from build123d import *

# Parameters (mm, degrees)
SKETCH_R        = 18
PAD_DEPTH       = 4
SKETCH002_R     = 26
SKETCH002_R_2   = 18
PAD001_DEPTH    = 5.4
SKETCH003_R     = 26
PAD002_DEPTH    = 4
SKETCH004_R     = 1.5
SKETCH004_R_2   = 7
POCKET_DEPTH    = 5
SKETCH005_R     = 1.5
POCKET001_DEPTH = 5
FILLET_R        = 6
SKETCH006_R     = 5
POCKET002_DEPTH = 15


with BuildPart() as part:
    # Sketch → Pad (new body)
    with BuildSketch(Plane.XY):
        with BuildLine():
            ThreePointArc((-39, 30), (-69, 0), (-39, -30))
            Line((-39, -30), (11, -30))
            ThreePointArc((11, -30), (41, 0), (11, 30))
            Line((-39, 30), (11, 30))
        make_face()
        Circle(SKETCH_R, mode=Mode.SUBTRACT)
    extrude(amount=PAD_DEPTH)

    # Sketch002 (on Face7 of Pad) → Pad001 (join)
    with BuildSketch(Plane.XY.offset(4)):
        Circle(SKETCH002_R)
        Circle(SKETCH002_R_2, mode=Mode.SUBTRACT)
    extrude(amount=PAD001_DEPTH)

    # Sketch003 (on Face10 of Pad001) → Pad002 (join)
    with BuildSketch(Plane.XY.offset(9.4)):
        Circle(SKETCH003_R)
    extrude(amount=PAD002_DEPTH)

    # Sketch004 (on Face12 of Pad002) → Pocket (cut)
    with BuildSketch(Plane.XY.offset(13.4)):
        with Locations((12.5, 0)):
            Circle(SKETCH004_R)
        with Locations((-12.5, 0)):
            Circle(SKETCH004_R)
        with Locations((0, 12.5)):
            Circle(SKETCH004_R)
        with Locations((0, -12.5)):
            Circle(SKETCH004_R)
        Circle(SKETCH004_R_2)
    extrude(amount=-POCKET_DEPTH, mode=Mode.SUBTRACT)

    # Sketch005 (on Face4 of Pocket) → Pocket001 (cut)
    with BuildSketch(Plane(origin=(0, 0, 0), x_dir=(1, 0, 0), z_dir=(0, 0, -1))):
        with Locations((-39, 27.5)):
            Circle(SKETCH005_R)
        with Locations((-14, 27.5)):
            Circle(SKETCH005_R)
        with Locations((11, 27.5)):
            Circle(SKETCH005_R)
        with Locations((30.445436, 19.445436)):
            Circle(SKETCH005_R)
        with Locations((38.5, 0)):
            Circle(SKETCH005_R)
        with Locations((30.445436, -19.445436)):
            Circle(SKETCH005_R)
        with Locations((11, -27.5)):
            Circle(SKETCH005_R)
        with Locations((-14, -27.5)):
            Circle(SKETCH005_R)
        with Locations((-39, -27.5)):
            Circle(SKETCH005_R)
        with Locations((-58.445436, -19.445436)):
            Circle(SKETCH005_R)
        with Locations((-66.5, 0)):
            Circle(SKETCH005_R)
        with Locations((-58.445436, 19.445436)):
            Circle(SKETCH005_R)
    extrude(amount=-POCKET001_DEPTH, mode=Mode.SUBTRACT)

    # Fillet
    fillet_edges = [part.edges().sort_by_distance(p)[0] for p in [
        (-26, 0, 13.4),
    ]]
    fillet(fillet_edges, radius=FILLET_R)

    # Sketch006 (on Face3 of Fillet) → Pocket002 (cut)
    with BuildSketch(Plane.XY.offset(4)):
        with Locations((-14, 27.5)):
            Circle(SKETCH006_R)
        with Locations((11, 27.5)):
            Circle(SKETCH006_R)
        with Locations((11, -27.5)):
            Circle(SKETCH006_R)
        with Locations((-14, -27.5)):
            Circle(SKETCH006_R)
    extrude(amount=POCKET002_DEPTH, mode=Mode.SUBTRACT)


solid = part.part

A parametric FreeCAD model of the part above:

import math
import FreeCAD as App
import Part
import Sketcher

V = App.Vector
Q = App.Units.Quantity


def edges_at(feature, points):
    """Names of the edges that pass closest to the given points."""
    edges = feature.Shape.Edges
    near = lambda p: min(range(len(edges)), key=lambda i: edges[i].distToShape(Part.Vertex(*p))[0])
    return sorted({f"Edge{near(p) + 1}" for p in points})

doc = App.newDocument("Part")
body = doc.addObject("PartDesign::Body", "Body")

# Sketch on XY plane
sketch1 = body.newObject("Sketcher::SketchObject", "Sketch")
sketch1.AttachmentSupport = (doc.getObject("XY_Plane"), [""])
sketch1.MapMode = "FlatFace"
sketch1.addGeometry(Part.ArcOfCircle(Part.Circle(V(-39, 0, 0), V(0, 0, 1), 30), math.radians(90), math.radians(270)), False)
sketch1.addGeometry(Part.LineSegment(V(-39, -30, 0), V(11, -30, 0)), False)
sketch1.addGeometry(Part.ArcOfCircle(Part.Circle(V(11, 0, 0), V(0, 0, 1), 30), math.radians(-90), math.radians(90)), False)
sketch1.addGeometry(Part.LineSegment(V(11, 30, 0), V(-39, 30, 0)), False)
sketch1.addGeometry(Part.Circle(V(0, 0, 0), V(0, 0, 1), 18), False)
sketch1.addConstraint(Sketcher.Constraint("Tangent", 0, 2, 1, 1))
sketch1.addConstraint(Sketcher.Constraint("Tangent", 1, 2, 2, 1))
sketch1.addConstraint(Sketcher.Constraint("Tangent", 2, 2, 3, 1))
sketch1.addConstraint(Sketcher.Constraint("Tangent", 3, 2, 0, 1))
sketch1.addConstraint(Sketcher.Constraint("Horizontal", 1))
sketch1.addConstraint(Sketcher.Constraint("Horizontal", 3))
sketch1.addConstraint(Sketcher.Constraint("Coincident", 4, 3, -1, 1))
sketch1.addConstraint(Sketcher.Constraint("PointOnObject", 0, 3, -1))
sketch1.addConstraint(Sketcher.Constraint("Diameter", 4, Q("36 mm")))
sketch1.addConstraint(Sketcher.Constraint("Radius", 0, Q("30 mm")))
sketch1.addConstraint(Sketcher.Constraint("DistanceX", 1, 1, 1, 2, Q("50 mm")))
sketch1.addConstraint(Sketcher.Constraint("DistanceX", 0, 3, -1, 1, Q("39 mm")))
pad1 = body.newObject("PartDesign::Pad", "Pad")
pad1.Profile = sketch1
pad1.Length = 4

# Sketch on XY plane
sketch2 = body.newObject("Sketcher::SketchObject", "Sketch001")
sketch2.AttachmentSupport = (doc.getObject("XY_Plane"), [""])
sketch2.MapMode = "FlatFace"
sketch2.AttachmentOffset = App.Placement(V(0, 0, 4), App.Rotation())
sketch2.addGeometry(Part.Circle(V(0, 0, 0), V(0, 0, 1), 26), False)
sketch2.addGeometry(Part.Circle(V(0, 0, 0), V(0, 0, 1), 18), False)
sketch2.addConstraint(Sketcher.Constraint("Coincident", 0, 3, -1, 1))
sketch2.addConstraint(Sketcher.Constraint("Coincident", 1, 3, -1, 1))
sketch2.addConstraint(Sketcher.Constraint("Diameter", 0, Q("52 mm")))
sketch2.addConstraint(Sketcher.Constraint("Diameter", 1, Q("36 mm")))
pad2 = body.newObject("PartDesign::Pad", "Pad001")
pad2.Profile = sketch2
pad2.Length = 5.4

# Sketch on XY plane
sketch3 = body.newObject("Sketcher::SketchObject", "Sketch002")
sketch3.AttachmentSupport = (doc.getObject("XY_Plane"), [""])
sketch3.MapMode = "FlatFace"
sketch3.AttachmentOffset = App.Placement(V(0, 0, 9.4), App.Rotation())
sketch3.addGeometry(Part.Circle(V(0, 0, 0), V(0, 0, 1), 26), False)
sketch3.addConstraint(Sketcher.Constraint("Coincident", 0, 3, -1, 1))
sketch3.addConstraint(Sketcher.Constraint("Diameter", 0, Q("52 mm")))
pad3 = body.newObject("PartDesign::Pad", "Pad002")
pad3.Profile = sketch3
pad3.Length = 4

# Sketch on XY plane
sketch4 = body.newObject("Sketcher::SketchObject", "Sketch003")
sketch4.AttachmentSupport = (doc.getObject("XY_Plane"), [""])
sketch4.MapMode = "FlatFace"
sketch4.AttachmentOffset = App.Placement(V(0, 0, 13.4), App.Rotation())
sketch4.addGeometry(Part.Circle(V(12.5, 0, 0), V(0, 0, 1), 1.5), False)
sketch4.addGeometry(Part.Circle(V(-12.5, 0, 0), V(0, 0, 1), 1.5), False)
sketch4.addGeometry(Part.Circle(V(0, 12.5, 0), V(0, 0, 1), 1.5), False)
sketch4.addGeometry(Part.Circle(V(0, -12.5, 0), V(0, 0, 1), 1.5), False)
sketch4.addGeometry(Part.Circle(V(0, 0, 0), V(0, 0, 1), 7), False)
sketch4.addConstraint(Sketcher.Constraint("Coincident", 4, 3, -1, 1))
sketch4.addConstraint(Sketcher.Constraint("Equal", 0, 1))
sketch4.addConstraint(Sketcher.Constraint("Equal", 1, 2))
sketch4.addConstraint(Sketcher.Constraint("Equal", 2, 3))
sketch4.addConstraint(Sketcher.Constraint("Symmetric", 0, 3, 1, 3, -1, 1))
sketch4.addConstraint(Sketcher.Constraint("Symmetric", 2, 3, 3, 3, -1, 1))
sketch4.addConstraint(Sketcher.Constraint("PointOnObject", 0, 3, -1))
sketch4.addConstraint(Sketcher.Constraint("PointOnObject", 2, 3, -2))
sketch4.addConstraint(Sketcher.Constraint("Diameter", 0, Q("3 mm")))
sketch4.addConstraint(Sketcher.Constraint("Diameter", 4, Q("14 mm")))
sketch4.addConstraint(Sketcher.Constraint("DistanceX", 1, 3, 0, 3, Q("25 mm")))
sketch4.addConstraint(Sketcher.Constraint("DistanceY", 3, 3, 2, 3, Q("25 mm")))
pocket1 = body.newObject("PartDesign::Pocket", "Pocket")
pocket1.Profile = sketch4
pocket1.Length = 5

# Sketch on XY plane
sketch5 = body.newObject("Sketcher::SketchObject", "Sketch004")
sketch5.AttachmentSupport = (doc.getObject("XY_Plane"), [""])
sketch5.MapMode = "FlatFace"
sketch5.addGeometry(Part.Circle(V(-39, -27.5, 0), V(0, 0, 1), 1.5), False)
sketch5.addGeometry(Part.Circle(V(-14, -27.5, 0), V(0, 0, 1), 1.5), False)
sketch5.addGeometry(Part.Circle(V(11, -27.5, 0), V(0, 0, 1), 1.5), False)
sketch5.addGeometry(Part.Circle(V(30.4, -19.4, 0), V(0, 0, 1), 1.5), False)
sketch5.addGeometry(Part.Circle(V(38.5, 0, 0), V(0, 0, 1), 1.5), False)
sketch5.addGeometry(Part.Circle(V(30.4, 19.4, 0), V(0, 0, 1), 1.5), False)
sketch5.addGeometry(Part.Circle(V(11, 27.5, 0), V(0, 0, 1), 1.5), False)
sketch5.addGeometry(Part.Circle(V(-14, 27.5, 0), V(0, 0, 1), 1.5), False)
sketch5.addGeometry(Part.Circle(V(-39, 27.5, 0), V(0, 0, 1), 1.5), False)
sketch5.addGeometry(Part.Circle(V(-58.4, 19.4, 0), V(0, 0, 1), 1.5), False)
sketch5.addGeometry(Part.Circle(V(-66.5, 0, 0), V(0, 0, 1), 1.5), False)
sketch5.addGeometry(Part.Circle(V(-58.4, -19.4, 0), V(0, 0, 1), 1.5), False)
sketch5.addConstraint(Sketcher.Constraint("Equal", 0, 1))
sketch5.addConstraint(Sketcher.Constraint("Equal", 1, 2))
sketch5.addConstraint(Sketcher.Constraint("Equal", 2, 3))
sketch5.addConstraint(Sketcher.Constraint("Equal", 3, 4))
sketch5.addConstraint(Sketcher.Constraint("Equal", 4, 5))
sketch5.addConstraint(Sketcher.Constraint("Equal", 5, 6))
sketch5.addConstraint(Sketcher.Constraint("Equal", 6, 7))
sketch5.addConstraint(Sketcher.Constraint("Equal", 7, 8))
sketch5.addConstraint(Sketcher.Constraint("Equal", 8, 9))
sketch5.addConstraint(Sketcher.Constraint("Equal", 9, 10))
sketch5.addConstraint(Sketcher.Constraint("Equal", 10, 11))
sketch5.addConstraint(Sketcher.Constraint("Symmetric", 3, 3, 5, 3, -1))
sketch5.addConstraint(Sketcher.Constraint("Symmetric", 2, 3, 6, 3, -1))
sketch5.addConstraint(Sketcher.Constraint("Symmetric", 1, 3, 7, 3, -1))
sketch5.addConstraint(Sketcher.Constraint("Symmetric", 0, 3, 8, 3, -1))
sketch5.addConstraint(Sketcher.Constraint("Symmetric", 9, 3, 11, 3, -1))
sketch5.addConstraint(Sketcher.Constraint("PointOnObject", 4, 3, -1))
sketch5.addConstraint(Sketcher.Constraint("PointOnObject", 10, 3, -1))
sketch5.addConstraint(Sketcher.Constraint("Horizontal", 0, 3, 1, 3))
sketch5.addConstraint(Sketcher.Constraint("Horizontal", 1, 3, 2, 3))
sketch5.addConstraint(Sketcher.Constraint("Horizontal", 5, 3, 9, 3))
sketch5.addConstraint(Sketcher.Constraint("Diameter", 0, Q("3 mm")))
sketch5.addConstraint(Sketcher.Constraint("DistanceX", 0, 3, -1, 1, Q("39 mm")))
sketch5.addConstraint(Sketcher.Constraint("DistanceX", 1, 3, -1, 1, Q("14 mm")))
sketch5.addConstraint(Sketcher.Constraint("DistanceX", -1, 1, 2, 3, Q("11 mm")))
sketch5.addConstraint(Sketcher.Constraint("DistanceY", 2, 3, 6, 3, Q("55 mm")))
sketch5.addConstraint(Sketcher.Constraint("DistanceX", -1, 1, 4, 3, Q("38.5 mm")))
sketch5.addConstraint(Sketcher.Constraint("DistanceX", 10, 3, -1, 1, Q("66.5 mm")))
sketch5.addConstraint(Sketcher.Constraint("DistanceX", -1, 1, 3, 3, Q("30.445436 mm")))
sketch5.addConstraint(Sketcher.Constraint("DistanceY", 3, 3, -1, 1, Q("19.445436 mm")))
sketch5.addConstraint(Sketcher.Constraint("DistanceX", 9, 3, -1, 1, Q("58.445436 mm")))
pocket2 = body.newObject("PartDesign::Pocket", "Pocket001")
pocket2.Profile = sketch5
pocket2.Length = 5
pocket2.Reversed = True
doc.recompute()

fillet = body.newObject("PartDesign::Fillet", "Fillet")
fillet.Base = (pocket2, edges_at(pocket2, [(-26, 0, 13.4)]))
fillet.Radius = 6

# Sketch on XY plane
sketch6 = body.newObject("Sketcher::SketchObject", "Sketch005")
sketch6.AttachmentSupport = (doc.getObject("XY_Plane"), [""])
sketch6.MapMode = "FlatFace"
sketch6.AttachmentOffset = App.Placement(V(0, 0, 4), App.Rotation())
sketch6.addGeometry(Part.Circle(V(-14, 28, 0), V(0, 0, 1), 5), False)
sketch6.addGeometry(Part.Circle(V(11, 28, 0), V(0, 0, 1), 5), False)
sketch6.addGeometry(Part.Circle(V(11, -28, 0), V(0, 0, 1), 5), False)
sketch6.addGeometry(Part.Circle(V(-14, -28, 0), V(0, 0, 1), 5), False)
sketch6.addConstraint(Sketcher.Constraint("Equal", 0, 1))
sketch6.addConstraint(Sketcher.Constraint("Equal", 1, 2))
sketch6.addConstraint(Sketcher.Constraint("Equal", 2, 3))
sketch6.addConstraint(Sketcher.Constraint("Symmetric", 1, 3, 2, 3, -1))
sketch6.addConstraint(Sketcher.Constraint("Symmetric", 0, 3, 3, 3, -1))
sketch6.addConstraint(Sketcher.Constraint("Horizontal", 0, 3, 1, 3))
sketch6.addConstraint(Sketcher.Constraint("Diameter", 0, Q("10 mm")))
sketch6.addConstraint(Sketcher.Constraint("DistanceX", 0, 3, -1, 1, Q("14 mm")))
sketch6.addConstraint(Sketcher.Constraint("DistanceX", -1, 1, 1, 3, Q("11 mm")))
sketch6.addConstraint(Sketcher.Constraint("DistanceY", 2, 3, 1, 3, Q("55 mm")))
pocket3 = body.newObject("PartDesign::Pocket", "Pocket002")
pocket3.Profile = sketch6
pocket3.Length = 15
pocket3.Reversed = True

doc.recompute()
